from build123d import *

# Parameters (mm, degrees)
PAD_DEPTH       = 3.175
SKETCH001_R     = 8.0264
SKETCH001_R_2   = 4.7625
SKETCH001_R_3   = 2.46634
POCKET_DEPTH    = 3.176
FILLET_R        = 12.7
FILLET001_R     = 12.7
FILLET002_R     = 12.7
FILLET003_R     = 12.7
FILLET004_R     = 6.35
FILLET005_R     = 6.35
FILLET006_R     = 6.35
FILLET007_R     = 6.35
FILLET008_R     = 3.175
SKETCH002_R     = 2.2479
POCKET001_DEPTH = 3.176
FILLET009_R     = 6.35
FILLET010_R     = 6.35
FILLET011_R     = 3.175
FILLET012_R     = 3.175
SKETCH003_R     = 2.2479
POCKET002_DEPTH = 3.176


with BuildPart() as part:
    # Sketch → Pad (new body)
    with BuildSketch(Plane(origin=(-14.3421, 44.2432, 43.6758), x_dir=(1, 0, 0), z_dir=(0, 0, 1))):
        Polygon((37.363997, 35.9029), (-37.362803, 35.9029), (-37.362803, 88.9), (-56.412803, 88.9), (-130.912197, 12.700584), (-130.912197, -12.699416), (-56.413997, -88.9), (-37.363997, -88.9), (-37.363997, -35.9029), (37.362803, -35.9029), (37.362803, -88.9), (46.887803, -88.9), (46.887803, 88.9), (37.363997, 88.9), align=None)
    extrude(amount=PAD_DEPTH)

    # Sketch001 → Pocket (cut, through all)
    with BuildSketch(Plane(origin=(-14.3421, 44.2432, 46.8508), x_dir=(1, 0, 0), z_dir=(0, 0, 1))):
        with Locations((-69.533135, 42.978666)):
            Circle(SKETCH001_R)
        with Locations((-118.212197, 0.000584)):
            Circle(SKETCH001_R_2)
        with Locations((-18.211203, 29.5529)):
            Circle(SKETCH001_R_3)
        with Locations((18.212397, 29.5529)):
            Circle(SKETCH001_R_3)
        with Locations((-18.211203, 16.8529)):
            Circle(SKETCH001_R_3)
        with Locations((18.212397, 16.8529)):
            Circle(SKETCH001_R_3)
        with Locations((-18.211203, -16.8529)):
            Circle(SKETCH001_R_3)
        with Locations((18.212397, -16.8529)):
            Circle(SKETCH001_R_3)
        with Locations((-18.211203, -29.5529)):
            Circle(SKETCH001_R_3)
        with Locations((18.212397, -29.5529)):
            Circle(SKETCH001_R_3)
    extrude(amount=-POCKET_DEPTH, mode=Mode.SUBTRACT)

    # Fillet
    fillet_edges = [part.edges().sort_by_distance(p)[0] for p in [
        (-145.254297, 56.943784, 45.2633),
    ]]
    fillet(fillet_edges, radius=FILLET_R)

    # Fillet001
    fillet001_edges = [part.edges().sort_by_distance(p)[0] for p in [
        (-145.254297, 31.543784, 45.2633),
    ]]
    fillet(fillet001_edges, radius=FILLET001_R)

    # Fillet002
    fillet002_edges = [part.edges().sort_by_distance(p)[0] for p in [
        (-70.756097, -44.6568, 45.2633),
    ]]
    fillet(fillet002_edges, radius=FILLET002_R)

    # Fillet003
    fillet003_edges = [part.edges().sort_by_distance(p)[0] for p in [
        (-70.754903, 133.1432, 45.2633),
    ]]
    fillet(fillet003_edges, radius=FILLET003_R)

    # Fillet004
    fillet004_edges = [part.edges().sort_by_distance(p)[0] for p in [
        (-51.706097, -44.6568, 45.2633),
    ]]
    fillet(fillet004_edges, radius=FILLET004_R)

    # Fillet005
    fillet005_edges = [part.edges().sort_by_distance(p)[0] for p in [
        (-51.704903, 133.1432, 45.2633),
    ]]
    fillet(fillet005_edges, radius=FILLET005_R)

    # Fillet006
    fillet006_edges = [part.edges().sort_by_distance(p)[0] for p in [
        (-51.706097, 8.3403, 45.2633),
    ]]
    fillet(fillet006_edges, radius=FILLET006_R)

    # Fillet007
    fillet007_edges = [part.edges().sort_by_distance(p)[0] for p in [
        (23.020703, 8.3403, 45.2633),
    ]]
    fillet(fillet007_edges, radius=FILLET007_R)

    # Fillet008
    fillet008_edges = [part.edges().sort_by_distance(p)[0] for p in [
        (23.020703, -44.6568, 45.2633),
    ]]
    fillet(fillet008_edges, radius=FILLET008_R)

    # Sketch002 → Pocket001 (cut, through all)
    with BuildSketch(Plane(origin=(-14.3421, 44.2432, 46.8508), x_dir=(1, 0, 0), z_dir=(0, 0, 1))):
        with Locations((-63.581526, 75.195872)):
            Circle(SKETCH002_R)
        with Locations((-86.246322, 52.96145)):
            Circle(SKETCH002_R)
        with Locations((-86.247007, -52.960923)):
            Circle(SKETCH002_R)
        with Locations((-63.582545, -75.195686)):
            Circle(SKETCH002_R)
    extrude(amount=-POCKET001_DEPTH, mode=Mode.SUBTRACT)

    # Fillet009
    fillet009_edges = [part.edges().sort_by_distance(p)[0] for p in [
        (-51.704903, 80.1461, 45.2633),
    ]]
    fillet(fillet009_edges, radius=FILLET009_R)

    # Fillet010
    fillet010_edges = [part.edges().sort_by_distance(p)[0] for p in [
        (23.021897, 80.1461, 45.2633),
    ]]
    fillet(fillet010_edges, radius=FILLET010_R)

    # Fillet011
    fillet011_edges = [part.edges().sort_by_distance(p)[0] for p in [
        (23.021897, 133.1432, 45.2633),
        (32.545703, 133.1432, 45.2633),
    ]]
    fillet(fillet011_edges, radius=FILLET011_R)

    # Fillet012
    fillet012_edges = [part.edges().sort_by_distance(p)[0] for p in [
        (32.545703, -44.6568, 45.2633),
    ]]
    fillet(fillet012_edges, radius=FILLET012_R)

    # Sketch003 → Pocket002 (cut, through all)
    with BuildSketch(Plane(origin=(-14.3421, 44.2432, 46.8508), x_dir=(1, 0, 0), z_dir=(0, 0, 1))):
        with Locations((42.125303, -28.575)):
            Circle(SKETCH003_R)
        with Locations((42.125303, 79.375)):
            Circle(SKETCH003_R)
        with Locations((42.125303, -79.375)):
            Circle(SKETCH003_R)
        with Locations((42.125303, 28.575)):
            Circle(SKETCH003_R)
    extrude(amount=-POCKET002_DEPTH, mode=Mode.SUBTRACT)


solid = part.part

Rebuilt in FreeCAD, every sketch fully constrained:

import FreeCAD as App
import Part
import Sketcher
Q = App.Units.Quantity


def edges_at(feature, points):
    """Names of the edges that pass closest to the given points."""
    edges = feature.Shape.Edges
    near = lambda p: min(range(len(edges)), key=lambda i: edges[i].distToShape(Part.Vertex(*p))[0])
    return sorted({f"Edge{near(p) + 1}" for p in points})


def add_polygon(sketch, points):
    """Adds a closed chain of lines whose ends are joined by coincident constraints."""
    first, n = sketch.GeometryCount, len(points)
    for a, b in zip(points, points[1:] + points[:1]):
        sketch.addGeometry(Part.LineSegment(App.Vector(*a, 0), App.Vector(*b, 0)), False)
    for i in range(n):
        sketch.addConstraint(Sketcher.Constraint("Coincident", first + i, 2, first + (i + 1) % n, 1))

doc = App.newDocument("Part")
body = doc.addObject("PartDesign::Body", "Body")

# Sketch on XY plane
sketch1 = body.newObject("Sketcher::SketchObject", "Sketch")
sketch1.AttachmentSupport = (doc.getObject("XY_Plane"), [""])
sketch1.MapMode = "FlatFace"
sketch1.AttachmentOffset = App.Placement(App.Vector(0, 0, 43.6758), App.Rotation())
add_polygon(sketch1, [(23.021897, 80.1461), (-51.704903, 80.1461), (-51.704903, 133.1432), (-70.754903, 133.1432), (-145.254297, 56.943784), (-145.254297, 31.543784), (-70.756097, -44.6568), (-51.706097, -44.6568), (-51.706097, 8.3403), (23.020703, 8.3403), (23.020703, -44.6568), (32.545703, -44.6568), (32.545703, 133.1432), (23.021897, 133.1432)])  # lines 0-13
sketch1.addConstraint([
    Sketcher.Constraint("Horizontal", 0),
    Sketcher.Constraint("Vertical", 1),
    Sketcher.Constraint("Horizontal", 2),
    Sketcher.Constraint("Vertical", 4),
    Sketcher.Constraint("Horizontal", 6),
    Sketcher.Constraint("Vertical", 7),
    Sketcher.Constraint("Horizontal", 8),
    Sketcher.Constraint("Vertical", 9),
    Sketcher.Constraint("Horizontal", 10),
    Sketcher.Constraint("Vertical", 11),
    Sketcher.Constraint("Horizontal", 12),
    Sketcher.Constraint("Vertical", 13),
    Sketcher.Constraint("Horizontal", 6, 2, 9, 2),
    Sketcher.Constraint("Horizontal", 2, 2, 11, 2),
    Sketcher.Constraint("Equal", 2, 6),
    Sketcher.Constraint("Equal", 0, 8),
    Sketcher.Constraint("Equal", 1, 7),
    Sketcher.Constraint("Equal", 3, 5),
    Sketcher.Constraint("DistanceY", 4, 2, 4, 1, Q("1 in")),
    Sketcher.Constraint("DistanceY", 11, 1, 11, 2, Q("7 in")),
    Sketcher.Constraint("DistanceX", 2, 2, 2, 1, Q("0.75 in")),
    Sketcher.Constraint("DistanceX", 0, 2, 0, 1, Q("2.942 in")),
    Sketcher.Constraint("DistanceX", 10, 1, 10, 2, Q("0.375 in")),
    Sketcher.Constraint("DistanceY", 1, 1, 1, 2, Q("2.0865 in")),
    Sketcher.Constraint("DistanceX", 4, 2, 5, 2, Q("2.933 in")),
    Sketcher.Constraint("DistanceY", -1, 1, 0, 2, Q("80.1461 mm")),
    Sketcher.Constraint("Distance", 3, Q("106.566931 mm")),
    Sketcher.Constraint("DistanceX", 0, 2, -1, 1, Q("51.704903 mm")),
])
pad1 = body.newObject("PartDesign::Pad", "Pad")
pad1.Profile = sketch1
pad1.Length = Q("0.125 in")

# Sketch on XY plane
sketch2 = body.newObject("Sketcher::SketchObject", "Sketch001")
sketch2.AttachmentSupport = (doc.getObject("XY_Plane"), [""])
sketch2.MapMode = "FlatFace"
sketch2.AttachmentOffset = App.Placement(App.Vector(0, 0, 46.8508), App.Rotation())
sketch2.addGeometry([
    Part.Circle(App.Vector(-83.875235, 87.221866, 0), App.Vector(0, 0, 1), 8.0264),  # 0
    Part.Circle(App.Vector(-132.554297, 44.243784, 0), App.Vector(0, 0, 1), 4.7625),  # 1
    Part.Circle(App.Vector(-32.553303, 73.7961, 0), App.Vector(0, 0, 1), 2.46634),  # 2
    Part.Circle(App.Vector(3.870297, 73.7961, 0), App.Vector(0, 0, 1), 2.46634),  # 3
    Part.Circle(App.Vector(-32.553303, 61.0961, 0), App.Vector(0, 0, 1), 2.46634),  # 4
    Part.Circle(App.Vector(3.870297, 61.0961, 0), App.Vector(0, 0, 1), 2.46634),  # 5
    Part.Circle(App.Vector(-32.553303, 27.3903, 0), App.Vector(0, 0, 1), 2.46634),  # 6
    Part.Circle(App.Vector(3.870297, 27.3903, 0), App.Vector(0, 0, 1), 2.46634),  # 7
    Part.Circle(App.Vector(-32.553303, 14.6903, 0), App.Vector(0, 0, 1), 2.46634),  # 8
    Part.Circle(App.Vector(3.870297, 14.6903, 0), App.Vector(0, 0, 1), 2.46634),  # 9
], False)
sketch2.addConstraint([
    Sketcher.Constraint("Equal", 2, 3),
    Sketcher.Constraint("Equal", 3, 4),
    Sketcher.Constraint("Equal", 4, 5),
    Sketcher.Constraint("Equal", 5, 6),
    Sketcher.Constraint("Equal", 6, 7),
    Sketcher.Constraint("Equal", 7, 8),
    Sketcher.Constraint("Equal", 8, 9),
    Sketcher.Constraint("Horizontal", 2, 3, 3, 3),
    Sketcher.Constraint("Horizontal", 4, 3, 5, 3),
    Sketcher.Constraint("Horizontal", 6, 3, 7, 3),
    Sketcher.Constraint("Horizontal", 8, 3, 9, 3),
    Sketcher.Constraint("Vertical", 2, 3, 4, 3),
    Sketcher.Constraint("Vertical", 3, 3, 5, 3),
    Sketcher.Constraint("Vertical", 4, 3, 6, 3),
    Sketcher.Constraint("Vertical", 5, 3, 7, 3),
    Sketcher.Constraint("Vertical", 6, 3, 8, 3),
    Sketcher.Constraint("Vertical", 7, 3, 9, 3),
    Sketcher.Constraint("Diameter", 0, Q("0.632 in")),
    Sketcher.Constraint("Diameter", 1, Q("0.375 in")),
    Sketcher.Constraint("Diameter", 2, Q("0.1942 in")),
    Sketcher.Constraint("DistanceY", 4, 3, 2, 3, Q("0.5 in")),
    Sketcher.Constraint("DistanceY", 8, 3, 6, 3, Q("0.5 in")),
    Sketcher.Constraint("DistanceX", 2, 3, 3, 3, Q("1.434 in")),
    Sketcher.Constraint("DistanceY", 6, 3, 4, 3, Q("1.327 in")),
    Sketcher.Constraint("DistanceY", -1, 1, 2, 3, Q("73.7961 mm")),
    Sketcher.Constraint("DistanceX", 1, 3, 0, 3, Q("48.679062 mm")),
    Sketcher.Constraint("DistanceX", 0, 3, 3, 3, Q("87.745532 mm")),
    Sketcher.Constraint("DistanceX", 0, 3, -1, 1, Q("83.875235 mm")),
    Sketcher.Constraint("DistanceY", -1, 1, 0, 3, Q("87.221866 mm")),
    Sketcher.Constraint("DistanceY", -1, 1, 1, 3, Q("44.243784 mm")),
])
pocket1 = body.newObject("PartDesign::Pocket", "Pocket")
pocket1.Profile = sketch2
pocket1.Type = "ThroughAll"
doc.recompute()

fillet = body.newObject("PartDesign::Fillet", "Fillet")
fillet.Base = (pocket1, edges_at(pocket1, [(-145.254, 56.944, 45.263)]))
fillet.Radius = Q("0.5 in")
doc.recompute()

fillet2 = body.newObject("PartDesign::Fillet", "Fillet001")
fillet2.Base = (fillet, edges_at(fillet, [(-145.254, 31.544, 45.263)]))
fillet2.Radius = Q("0.5 in")
doc.recompute()

fillet3 = body.newObject("PartDesign::Fillet", "Fillet002")
fillet3.Base = (fillet2, edges_at(fillet2, [(-70.756, -44.657, 45.263)]))
fillet3.Radius = Q("0.5 in")
doc.recompute()

fillet4 = body.newObject("PartDesign::Fillet", "Fillet003")
fillet4.Base = (fillet3, edges_at(fillet3, [(-70.755, 133.143, 45.263)]))
fillet4.Radius = Q("0.5 in")
doc.recompute()

fillet5 = body.newObject("PartDesign::Fillet", "Fillet004")
fillet5.Base = (fillet4, edges_at(fillet4, [(-51.706, -44.657, 45.263)]))
fillet5.Radius = Q("0.25 in")
doc.recompute()

fillet6 = body.newObject("PartDesign::Fillet", "Fillet005")
fillet6.Base = (fillet5, edges_at(fillet5, [(-51.705, 133.143, 45.263)]))
fillet6.Radius = Q("0.25 in")
doc.recompute()

fillet7 = body.newObject("PartDesign::Fillet", "Fillet006")
fillet7.Base = (fillet6, edges_at(fillet6, [(-51.706, 8.34, 45.263)]))
fillet7.Radius = Q("0.25 in")
doc.recompute()

fillet8 = body.newObject("PartDesign::Fillet", "Fillet007")
fillet8.Base = (fillet7, edges_at(fillet7, [(23.021, 8.34, 45.263)]))
fillet8.Radius = Q("0.25 in")
doc.recompute()

fillet9 = body.newObject("PartDesign::Fillet", "Fillet008")
fillet9.Base = (fillet8, edges_at(fillet8, [(23.021, -44.657, 45.263)]))
fillet9.Radius = Q("0.125 in")

# Sketch on XY plane
sketch3 = body.newObject("Sketcher::SketchObject", "Sketch002")
sketch3.AttachmentSupport = (doc.getObject("XY_Plane"), [""])
sketch3.MapMode = "FlatFace"
sketch3.AttachmentOffset = App.Placement(App.Vector(0, 0, 46.8508), App.Rotation())
sketch3.addGeometry([
    Part.Circle(App.Vector(-77.923626, 119.439072, 0), App.Vector(0, 0, 1), 2.2479),
    Part.Circle(App.Vector(-100.588422, 97.20465, 0), App.Vector(0, 0, 1), 2.2479),
    Part.Circle(App.Vector(-100.589107, -8.717723, 0), App.Vector(0, 0, 1), 2.2479),
    Part.Circle(App.Vector(-77.924645, -30.952486, 0), App.Vector(0, 0, 1), 2.2479),
], False)
sketch3.addConstraint([
    Sketcher.Constraint("Equal", 0, 1),
    Sketcher.Constraint("Equal", 1, 2),
    Sketcher.Constraint("Equal", 2, 3),
    Sketcher.Constraint("Diameter", 0, Q("0.177 in")),
    Sketcher.Constraint("DistanceY", -1, 1, 0, 3, Q("119.439072 mm")),
    Sketcher.Constraint("DistanceX", 1, 3, -1, 1, Q("100.588422 mm")),
    Sketcher.Constraint("DistanceY", -1, 1, 1, 3, Q("97.20465 mm")),
    Sketcher.Constraint("DistanceX", 2, 3, 0, 3, Q("22.665481 mm")),
    Sketcher.Constraint("DistanceX", 3, 3, 0, 3, Q("0.001019 mm")),
    Sketcher.Constraint("DistanceY", 3, 3, 0, 3, Q("150.391558 mm")),
    Sketcher.Constraint("DistanceX", 0, 3, -1, 1, Q("77.923626 mm")),
    Sketcher.Constraint("DistanceY", 2, 3, -1, 1, Q("8.717723 mm")),
])
pocket2 = body.newObject("PartDesign::Pocket", "Pocket001")
pocket2.Profile = sketch3
pocket2.Type = "ThroughAll"
doc.recompute()

fillet10 = body.newObject("PartDesign::Fillet", "Fillet009")
fillet10.Base = (pocket2, edges_at(pocket2, [(-51.705, 80.146, 45.263)]))
fillet10.Radius = Q("0.25 in")
doc.recompute()

fillet11 = body.newObject("PartDesign::Fillet", "Fillet010")
fillet11.Base = (fillet10, edges_at(fillet10, [(23.022, 80.146, 45.263)]))
fillet11.Radius = Q("0.25 in")
doc.recompute()

fillet12 = body.newObject("PartDesign::Fillet", "Fillet011")
fillet12.Base = (fillet11, edges_at(fillet11, [(23.022, 133.143, 45.263), (32.546, 133.143, 45.263)]))
fillet12.Radius = Q("0.125 in")
doc.recompute()

fillet13 = body.newObject("PartDesign::Fillet", "Fillet012")
fillet13.Base = (fillet12, edges_at(fillet12, [(32.546, -44.657, 45.263)]))
fillet13.Radius = Q("0.125 in")

# Sketch on XY plane
sketch4 = body.newObject("Sketcher::SketchObject", "Sketch003")
sketch4.AttachmentSupport = (doc.getObject("XY_Plane"), [""])
sketch4.MapMode = "FlatFace"
sketch4.AttachmentOffset = App.Placement(App.Vector(0, 0, 46.8508), App.Rotation())
sketch4.addGeometry([
    Part.Circle(App.Vector(27.783203, 15.6682, 0), App.Vector(0, 0, 1), 2.2479),
    Part.Circle(App.Vector(27.783203, 123.6182, 0), App.Vector(0, 0, 1), 2.2479),
    Part.Circle(App.Vector(27.783203, -35.1318, 0), App.Vector(0, 0, 1), 2.2479),
    Part.Circle(App.Vector(27.783203, 72.8182, 0), App.Vector(0, 0, 1), 2.2479),
], False)
sketch4.addConstraint([
    Sketcher.Constraint("Equal", 0, 1),
    Sketcher.Constraint("Equal", 1, 2),
    Sketcher.Constraint("Equal", 2, 3),
    Sketcher.Constraint("Vertical", 0, 3, 1, 3),
    Sketcher.Constraint("Vertical", 1, 3, 2, 3),
    Sketcher.Constraint("Vertical", 2, 3, 3, 3),
    Sketcher.Constraint("Diameter", 0, Q("0.177 in")),
    Sketcher.Constraint("DistanceY", 2, 3, 0, 3, Q("2 in")),
    Sketcher.Constraint("DistanceY", 3, 3, 1, 3, Q("2 in")),
    Sketcher.Constraint("DistanceY", 0, 3, 1, 3, Q("4.25 in")),
    Sketcher.Constraint("DistanceY", -1, 1, 0, 3, Q("15.6682 mm")),
    Sketcher.Constraint("DistanceX", -1, 1, 0, 3, Q("27.783203 mm")),
])
pocket3 = body.newObject("PartDesign::Pocket", "Pocket002")
pocket3.Profile = sketch4
pocket3.Type = "ThroughAll"

doc.recompute()
